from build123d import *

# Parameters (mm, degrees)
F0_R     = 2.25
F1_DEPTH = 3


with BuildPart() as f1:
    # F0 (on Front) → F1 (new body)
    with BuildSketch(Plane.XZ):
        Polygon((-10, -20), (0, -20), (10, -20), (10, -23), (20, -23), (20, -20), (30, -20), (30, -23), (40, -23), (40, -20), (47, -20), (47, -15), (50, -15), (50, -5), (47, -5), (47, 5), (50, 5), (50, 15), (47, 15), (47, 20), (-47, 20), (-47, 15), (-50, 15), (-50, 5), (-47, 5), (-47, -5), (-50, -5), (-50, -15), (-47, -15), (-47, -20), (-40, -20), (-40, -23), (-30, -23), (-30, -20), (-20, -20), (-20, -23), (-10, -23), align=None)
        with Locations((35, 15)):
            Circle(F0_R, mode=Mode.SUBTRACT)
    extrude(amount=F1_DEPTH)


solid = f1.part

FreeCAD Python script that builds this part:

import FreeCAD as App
import Part
import Sketcher
from FreeCAD import Vector
Q = App.Units.Quantity

doc = App.newDocument("Part")
body = doc.addObject("PartDesign::Body", "Body")

# Sketch on XZ plane
sketch1 = doc.addObject("Sketcher::SketchObject", "Sketch")
body.addObject(sketch1)
sketch1.AttachmentSupport = (doc.XZ_Plane, [""])
sketch1.MapMode = "FlatFace"
sketch1.addGeometry([
    Part.LineSegment(Vector(-10, -20, 0), Vector(10, -20, 0)),  # 0
    Part.LineSegment(Vector(10, -20, 0), Vector(10, -23, 0)),  # 1
    Part.LineSegment(Vector(10, -23, 0), Vector(20, -23, 0)),  # 2
    Part.LineSegment(Vector(20, -23, 0), Vector(20, -20, 0)),  # 3
    Part.LineSegment(Vector(20, -20, 0), Vector(30, -20, 0)),  # 4
    Part.LineSegment(Vector(30, -20, 0), Vector(30, -23, 0)),  # 5
    Part.LineSegment(Vector(30, -23, 0), Vector(40, -23, 0)),  # 6
    Part.LineSegment(Vector(40, -23, 0), Vector(40, -20, 0)),  # 7
    Part.LineSegment(Vector(40, -20, 0), Vector(47, -20, 0)),  # 8
    Part.LineSegment(Vector(47, -20, 0), Vector(47, -15, 0)),  # 9
    Part.LineSegment(Vector(47, -15, 0), Vector(50, -15, 0)),  # 10
    Part.LineSegment(Vector(50, -15, 0), Vector(50, -5, 0)),  # 11
    Part.LineSegment(Vector(50, -5, 0), Vector(47, -5, 0)),  # 12
    Part.LineSegment(Vector(47, -5, 0), Vector(47, 5, 0)),  # 13
    Part.LineSegment(Vector(47, 5, 0), Vector(50, 5, 0)),  # 14
    Part.LineSegment(Vector(50, 5, 0), Vector(50, 15, 0)),  # 15
    Part.LineSegment(Vector(50, 15, 0), Vector(47, 15, 0)),  # 16
    Part.LineSegment(Vector(47, 15, 0), Vector(47, 20, 0)),  # 17
    Part.LineSegment(Vector(47, 20, 0), Vector(-47, 20, 0)),  # 18
    Part.LineSegment(Vector(-47, 20, 0), Vector(-47, 15, 0)),  # 19
    Part.LineSegment(Vector(-47, 15, 0), Vector(-50, 15, 0)),  # 20
    Part.LineSegment(Vector(-50, 15, 0), Vector(-50, 5, 0)),  # 21
    Part.LineSegment(Vector(-50, 5, 0), Vector(-47, 5, 0)),  # 22
    Part.LineSegment(Vector(-47, 5, 0), Vector(-47, -5, 0)),  # 23
    Part.LineSegment(Vector(-47, -5, 0), Vector(-50, -5, 0)),  # 24
    Part.LineSegment(Vector(-50, -5, 0), Vector(-50, -15, 0)),  # 25
    Part.LineSegment(Vector(-50, -15, 0), Vector(-47, -15, 0)),  # 26
    Part.LineSegment(Vector(-47, -15, 0), Vector(-47, -20, 0)),  # 27
    Part.LineSegment(Vector(-47, -20, 0), Vector(-40, -20, 0)),  # 28
    Part.LineSegment(Vector(-40, -20, 0), Vector(-40, -23, 0)),  # 29
    Part.LineSegment(Vector(-40, -23, 0), Vector(-30, -23, 0)),  # 30
    Part.LineSegment(Vector(-30, -23, 0), Vector(-30, -20, 0)),  # 31
    Part.LineSegment(Vector(-30, -20, 0), Vector(-20, -20, 0)),  # 32
    Part.LineSegment(Vector(-20, -20, 0), Vector(-20, -23, 0)),  # 33
    Part.LineSegment(Vector(-20, -23, 0), Vector(-10, -23, 0)),  # 34
    Part.LineSegment(Vector(-10, -23, 0), Vector(-10, -20, 0)),  # 35
    Part.Circle(Vector(35, 15, 0), Vector(0, 0, 1), 2.2),  # 36
], False)
sketch1.addConstraint([
    Sketcher.Constraint("Coincident", 0, 2, 1, 1),
    Sketcher.Constraint("Coincident", 1, 2, 2, 1),
    Sketcher.Constraint("Coincident", 2, 2, 3, 1),
    Sketcher.Constraint("Coincident", 3, 2, 4, 1),
    Sketcher.Constraint("Coincident", 4, 2, 5, 1),
    Sketcher.Constraint("Coincident", 5, 2, 6, 1),
    Sketcher.Constraint("Coincident", 6, 2, 7, 1),
    Sketcher.Constraint("Coincident", 7, 2, 8, 1),
    Sketcher.Constraint("Coincident", 8, 2, 9, 1),
    Sketcher.Constraint("Coincident", 9, 2, 10, 1),
    Sketcher.Constraint("Coincident", 10, 2, 11, 1),
    Sketcher.Constraint("Coincident", 11, 2, 12, 1),
    Sketcher.Constraint("Coincident", 12, 2, 13, 1),
    Sketcher.Constraint("Coincident", 13, 2, 14, 1),
    Sketcher.Constraint("Coincident", 14, 2, 15, 1),
    Sketcher.Constraint("Coincident", 15, 2, 16, 1),
    Sketcher.Constraint("Coincident", 16, 2, 17, 1),
    Sketcher.Constraint("Coincident", 17, 2, 18, 1),
    Sketcher.Constraint("Coincident", 18, 2, 19, 1),
    Sketcher.Constraint("Coincident", 19, 2, 20, 1),
    Sketcher.Constraint("Coincident", 20, 2, 21, 1),
    Sketcher.Constraint("Coincident", 21, 2, 22, 1),
    Sketcher.Constraint("Coincident", 22, 2, 23, 1),
    Sketcher.Constraint("Coincident", 23, 2, 24, 1),
    Sketcher.Constraint("Coincident", 24, 2, 25, 1),
    Sketcher.Constraint("Coincident", 25, 2, 26, 1),
    Sketcher.Constraint("Coincident", 26, 2, 27, 1),
    Sketcher.Constraint("Coincident", 27, 2, 28, 1),
    Sketcher.Constraint("Coincident", 28, 2, 29, 1),
    Sketcher.Constraint("Coincident", 29, 2, 30, 1),
    Sketcher.Constraint("Coincident", 30, 2, 31, 1),
    Sketcher.Constraint("Coincident", 31, 2, 32, 1),
    Sketcher.Constraint("Coincident", 32, 2, 33, 1),
    Sketcher.Constraint("Coincident", 33, 2, 34, 1),
    Sketcher.Constraint("Coincident", 34, 2, 35, 1),
    Sketcher.Constraint("Coincident", 35, 2, 0, 1),
    Sketcher.Constraint("Horizontal", 0),
    Sketcher.Constraint("Vertical", 1),
    Sketcher.Constraint("Horizontal", 2),
    Sketcher.Constraint("Vertical", 3),
    Sketcher.Constraint("Horizontal", 4),
    Sketcher.Constraint("Vertical", 5),
    Sketcher.Constraint("Horizontal", 6),
    Sketcher.Constraint("Vertical", 7),
    Sketcher.Constraint("Horizontal", 8),
    Sketcher.Constraint("Vertical", 9),
    Sketcher.Constraint("Horizontal", 10),
    Sketcher.Constraint("Vertical", 11),
    Sketcher.Constraint("Horizontal", 12),
    Sketcher.Constraint("Vertical", 13),
    Sketcher.Constraint("Horizontal", 14),
    Sketcher.Constraint("Vertical", 15),
    Sketcher.Constraint("Horizontal", 16),
    Sketcher.Constraint("Vertical", 17),
    Sketcher.Constraint("Horizontal", 18),
    Sketcher.Constraint("Vertical", 19),
    Sketcher.Constraint("Horizontal", 20),
    Sketcher.Constraint("Vertical", 21),
    Sketcher.Constraint("Horizontal", 22),
    Sketcher.Constraint("Vertical", 23),
    Sketcher.Constraint("Horizontal", 24),
    Sketcher.Constraint("Vertical", 25),
    Sketcher.Constraint("Horizontal", 26),
    Sketcher.Constraint("Vertical", 27),
    Sketcher.Constraint("Horizontal", 28),
    Sketcher.Constraint("Vertical", 29),
    Sketcher.Constraint("Horizontal", 30),
    Sketcher.Constraint("Vertical", 31),
    Sketcher.Constraint("Horizontal", 32),
    Sketcher.Constraint("Vertical", 33),
    Sketcher.Constraint("Horizontal", 34),
    Sketcher.Constraint("Vertical", 35),
    Sketcher.Constraint("Symmetric", 8, 2, 18, 2, -1, 1),
    Sketcher.Constraint("Symmetric", 10, 2, 20, 2, -1, 1),
    Sketcher.Constraint("Symmetric", 12, 2, 22, 2, -1, 1),
    Sketcher.Constraint("Symmetric", 14, 2, 24, 2, -1, 1),
    Sketcher.Constraint("Symmetric", 16, 2, 26, 2, -1, 1),
    Sketcher.Constraint("Symmetric", 16, 2, 19, 2, -2),
    Sketcher.Constraint("Symmetric", 14, 2, 21, 2, -2),
    Sketcher.Constraint("Symmetric", 7, 2, 28, 2, -2),
    Sketcher.Constraint("Symmetric", 5, 2, 30, 2, -2),
    Sketcher.Constraint("Symmetric", 3, 2, 32, 2, -2),
    Sketcher.Constraint("Symmetric", 1, 2, 34, 2, -2),
    Sketcher.Constraint("Horizontal", 0, 2, 3, 2),
    Sketcher.Constraint("Horizontal", 2, 2, 5, 2),
    Sketcher.Constraint("Horizontal", 4, 2, 7, 2),
    Sketcher.Constraint("Horizontal", 36, 3, 15, 2),
    Sketcher.Constraint("Vertical", 9, 2, 12, 2),
    Sketcher.Constraint("Equal", 2, 4),
    Sketcher.Constraint("Equal", 4, 6),
    Sketcher.Constraint("Equal", 26, 1),
    Sketcher.Constraint("Equal", 34, 11),
    Sketcher.Constraint("Equal", 11, 13),
    Sketcher.Constraint("Diameter", 36, Q("4.5 mm")),
    Sketcher.Constraint("DistanceX", 0, 1, 0, 2, Q("20 mm")),
    Sketcher.Constraint("DistanceX", 2, 1, 2, 2, Q("10 mm")),
    Sketcher.Constraint("DistanceX", 8, 1, 8, 2, Q("7 mm")),
    Sketcher.Constraint("DistanceX", 10, 1, 10, 2, Q("3 mm")),
    Sketcher.Constraint("DistanceY", 9, 1, 9, 2, Q("5 mm")),
    Sketcher.Constraint("DistanceX", -1, 1, 36, 3, Q("35 mm")),
])
pad1 = doc.addObject("PartDesign::Pad", "Pad")
body.addObject(pad1)
pad1.Profile = sketch1
pad1.Length = 3

doc.recompute()
